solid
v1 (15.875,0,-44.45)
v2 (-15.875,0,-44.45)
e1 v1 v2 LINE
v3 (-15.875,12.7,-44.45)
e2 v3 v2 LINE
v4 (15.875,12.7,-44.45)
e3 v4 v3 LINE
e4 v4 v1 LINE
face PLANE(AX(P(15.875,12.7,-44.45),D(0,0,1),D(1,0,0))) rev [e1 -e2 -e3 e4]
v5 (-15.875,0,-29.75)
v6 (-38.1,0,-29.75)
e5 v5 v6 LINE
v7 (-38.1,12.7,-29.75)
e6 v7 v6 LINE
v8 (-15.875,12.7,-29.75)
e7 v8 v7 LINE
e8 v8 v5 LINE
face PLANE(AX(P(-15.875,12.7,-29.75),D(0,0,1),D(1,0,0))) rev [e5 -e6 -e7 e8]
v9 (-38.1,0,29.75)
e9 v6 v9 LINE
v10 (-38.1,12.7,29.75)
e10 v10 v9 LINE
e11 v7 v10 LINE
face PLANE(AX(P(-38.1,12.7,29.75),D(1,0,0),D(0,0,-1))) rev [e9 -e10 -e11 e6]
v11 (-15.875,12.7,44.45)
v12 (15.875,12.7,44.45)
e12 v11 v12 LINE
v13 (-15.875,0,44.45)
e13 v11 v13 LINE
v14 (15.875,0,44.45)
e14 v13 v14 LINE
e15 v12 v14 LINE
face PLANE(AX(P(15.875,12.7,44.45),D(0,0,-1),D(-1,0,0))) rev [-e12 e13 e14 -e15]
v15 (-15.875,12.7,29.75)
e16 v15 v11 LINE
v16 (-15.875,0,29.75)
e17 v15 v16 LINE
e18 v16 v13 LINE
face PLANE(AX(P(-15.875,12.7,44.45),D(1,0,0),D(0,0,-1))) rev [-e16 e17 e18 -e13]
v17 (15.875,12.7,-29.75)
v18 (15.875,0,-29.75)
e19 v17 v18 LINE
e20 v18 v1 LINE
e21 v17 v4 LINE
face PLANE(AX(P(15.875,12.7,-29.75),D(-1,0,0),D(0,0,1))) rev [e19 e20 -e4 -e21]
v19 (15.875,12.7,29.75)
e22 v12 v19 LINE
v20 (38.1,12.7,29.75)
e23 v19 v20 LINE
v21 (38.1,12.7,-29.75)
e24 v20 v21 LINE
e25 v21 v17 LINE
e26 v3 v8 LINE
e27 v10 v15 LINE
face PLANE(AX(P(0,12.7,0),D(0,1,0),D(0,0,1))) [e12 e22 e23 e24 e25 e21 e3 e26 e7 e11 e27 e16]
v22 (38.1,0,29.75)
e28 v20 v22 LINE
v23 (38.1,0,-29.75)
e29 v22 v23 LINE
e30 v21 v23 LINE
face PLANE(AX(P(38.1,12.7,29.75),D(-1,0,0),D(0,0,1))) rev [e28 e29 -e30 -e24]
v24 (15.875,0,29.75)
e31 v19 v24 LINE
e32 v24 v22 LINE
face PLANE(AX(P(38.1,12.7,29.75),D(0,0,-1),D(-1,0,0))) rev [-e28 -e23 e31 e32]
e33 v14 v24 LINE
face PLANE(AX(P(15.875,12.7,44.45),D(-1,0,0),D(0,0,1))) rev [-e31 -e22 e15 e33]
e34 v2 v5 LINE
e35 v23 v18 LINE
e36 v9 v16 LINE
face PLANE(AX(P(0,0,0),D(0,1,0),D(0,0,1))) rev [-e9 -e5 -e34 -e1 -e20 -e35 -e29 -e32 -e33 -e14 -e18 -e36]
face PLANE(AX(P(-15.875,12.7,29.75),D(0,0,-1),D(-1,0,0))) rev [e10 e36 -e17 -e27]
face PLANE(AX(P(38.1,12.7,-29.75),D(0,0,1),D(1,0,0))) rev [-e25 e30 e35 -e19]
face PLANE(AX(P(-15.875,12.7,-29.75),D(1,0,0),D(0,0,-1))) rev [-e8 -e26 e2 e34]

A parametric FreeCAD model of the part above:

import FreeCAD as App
import Part
import Sketcher

V = App.Vector
Q = App.Units.Quantity


def add_polygon(sketch, points):
    """Adds a closed chain of lines whose ends are joined by coincident constraints."""
    first, n = sketch.GeometryCount, len(points)
    for a, b in zip(points, points[1:] + points[:1]):
        sketch.addGeometry(Part.LineSegment(App.Vector(*a, 0), App.Vector(*b, 0)), False)
    for i in range(n):
        sketch.addConstraint(Sketcher.Constraint("Coincident", first + i, 2, first + (i + 1) % n, 1))

doc = App.newDocument("Part")
body = doc.addObject("PartDesign::Body", "Body")

# Sketch on XZ plane
sketch1 = doc.addObject("Sketcher::SketchObject", "Sketch")
body.addObject(sketch1)
sketch1.AttachmentSupport = (doc.XZ_Plane, [""])
sketch1.MapMode = "FlatFace"
add_polygon(sketch1, [(-38.1, 29.75), (-15.875, 29.75), (-15.875, 44.45), (15.875, 44.45), (15.875, 29.75), (38.1, 29.75), (38.1, -29.75), (15.875, -29.75), (15.875, -44.45), (-15.875, -44.45), (-15.875, -29.75), (-38.1, -29.75)])  # lines 0-11
sketch1.addConstraint([
    Sketcher.Constraint("Horizontal", 0),
    Sketcher.Constraint("Vertical", 1),
    Sketcher.Constraint("Horizontal", 2),
    Sketcher.Constraint("Vertical", 3),
    Sketcher.Constraint("Horizontal", 4),
    Sketcher.Constraint("Vertical", 5),
    Sketcher.Constraint("Horizontal", 6),
    Sketcher.Constraint("Vertical", 7),
    Sketcher.Constraint("Horizontal", 8),
    Sketcher.Constraint("Vertical", 9),
    Sketcher.Constraint("Horizontal", 10),
    Sketcher.Constraint("Vertical", 11),
    Sketcher.Constraint("Symmetric", 0, 2, 6, 2, -1, 1),
    Sketcher.Constraint("Symmetric", 2, 2, 8, 2, -1, 1),
    Sketcher.Constraint("Symmetric", 4, 2, 10, 2, -1, 1),
    Sketcher.Constraint("Symmetric", 0, 2, 3, 2, -2),
    Sketcher.Constraint("DistanceX", 2, 1, 2, 2, Q("1.25 in")),
    Sketcher.Constraint("DistanceX", -1, 1, 4, 2, Q("1.5 in")),
    Sketcher.Constraint("DistanceY", -1, 1, 1, 2, Q("1.75 in")),
    Sketcher.Constraint("DistanceY", 1, 1, 1, 2, 14.7),
])
pad1 = doc.addObject("PartDesign::Pad", "Pad")
body.addObject(pad1)
pad1.Profile = sketch1
pad1.Length = Q("0.5 in")
pad1.Reversed = True

doc.recompute()
